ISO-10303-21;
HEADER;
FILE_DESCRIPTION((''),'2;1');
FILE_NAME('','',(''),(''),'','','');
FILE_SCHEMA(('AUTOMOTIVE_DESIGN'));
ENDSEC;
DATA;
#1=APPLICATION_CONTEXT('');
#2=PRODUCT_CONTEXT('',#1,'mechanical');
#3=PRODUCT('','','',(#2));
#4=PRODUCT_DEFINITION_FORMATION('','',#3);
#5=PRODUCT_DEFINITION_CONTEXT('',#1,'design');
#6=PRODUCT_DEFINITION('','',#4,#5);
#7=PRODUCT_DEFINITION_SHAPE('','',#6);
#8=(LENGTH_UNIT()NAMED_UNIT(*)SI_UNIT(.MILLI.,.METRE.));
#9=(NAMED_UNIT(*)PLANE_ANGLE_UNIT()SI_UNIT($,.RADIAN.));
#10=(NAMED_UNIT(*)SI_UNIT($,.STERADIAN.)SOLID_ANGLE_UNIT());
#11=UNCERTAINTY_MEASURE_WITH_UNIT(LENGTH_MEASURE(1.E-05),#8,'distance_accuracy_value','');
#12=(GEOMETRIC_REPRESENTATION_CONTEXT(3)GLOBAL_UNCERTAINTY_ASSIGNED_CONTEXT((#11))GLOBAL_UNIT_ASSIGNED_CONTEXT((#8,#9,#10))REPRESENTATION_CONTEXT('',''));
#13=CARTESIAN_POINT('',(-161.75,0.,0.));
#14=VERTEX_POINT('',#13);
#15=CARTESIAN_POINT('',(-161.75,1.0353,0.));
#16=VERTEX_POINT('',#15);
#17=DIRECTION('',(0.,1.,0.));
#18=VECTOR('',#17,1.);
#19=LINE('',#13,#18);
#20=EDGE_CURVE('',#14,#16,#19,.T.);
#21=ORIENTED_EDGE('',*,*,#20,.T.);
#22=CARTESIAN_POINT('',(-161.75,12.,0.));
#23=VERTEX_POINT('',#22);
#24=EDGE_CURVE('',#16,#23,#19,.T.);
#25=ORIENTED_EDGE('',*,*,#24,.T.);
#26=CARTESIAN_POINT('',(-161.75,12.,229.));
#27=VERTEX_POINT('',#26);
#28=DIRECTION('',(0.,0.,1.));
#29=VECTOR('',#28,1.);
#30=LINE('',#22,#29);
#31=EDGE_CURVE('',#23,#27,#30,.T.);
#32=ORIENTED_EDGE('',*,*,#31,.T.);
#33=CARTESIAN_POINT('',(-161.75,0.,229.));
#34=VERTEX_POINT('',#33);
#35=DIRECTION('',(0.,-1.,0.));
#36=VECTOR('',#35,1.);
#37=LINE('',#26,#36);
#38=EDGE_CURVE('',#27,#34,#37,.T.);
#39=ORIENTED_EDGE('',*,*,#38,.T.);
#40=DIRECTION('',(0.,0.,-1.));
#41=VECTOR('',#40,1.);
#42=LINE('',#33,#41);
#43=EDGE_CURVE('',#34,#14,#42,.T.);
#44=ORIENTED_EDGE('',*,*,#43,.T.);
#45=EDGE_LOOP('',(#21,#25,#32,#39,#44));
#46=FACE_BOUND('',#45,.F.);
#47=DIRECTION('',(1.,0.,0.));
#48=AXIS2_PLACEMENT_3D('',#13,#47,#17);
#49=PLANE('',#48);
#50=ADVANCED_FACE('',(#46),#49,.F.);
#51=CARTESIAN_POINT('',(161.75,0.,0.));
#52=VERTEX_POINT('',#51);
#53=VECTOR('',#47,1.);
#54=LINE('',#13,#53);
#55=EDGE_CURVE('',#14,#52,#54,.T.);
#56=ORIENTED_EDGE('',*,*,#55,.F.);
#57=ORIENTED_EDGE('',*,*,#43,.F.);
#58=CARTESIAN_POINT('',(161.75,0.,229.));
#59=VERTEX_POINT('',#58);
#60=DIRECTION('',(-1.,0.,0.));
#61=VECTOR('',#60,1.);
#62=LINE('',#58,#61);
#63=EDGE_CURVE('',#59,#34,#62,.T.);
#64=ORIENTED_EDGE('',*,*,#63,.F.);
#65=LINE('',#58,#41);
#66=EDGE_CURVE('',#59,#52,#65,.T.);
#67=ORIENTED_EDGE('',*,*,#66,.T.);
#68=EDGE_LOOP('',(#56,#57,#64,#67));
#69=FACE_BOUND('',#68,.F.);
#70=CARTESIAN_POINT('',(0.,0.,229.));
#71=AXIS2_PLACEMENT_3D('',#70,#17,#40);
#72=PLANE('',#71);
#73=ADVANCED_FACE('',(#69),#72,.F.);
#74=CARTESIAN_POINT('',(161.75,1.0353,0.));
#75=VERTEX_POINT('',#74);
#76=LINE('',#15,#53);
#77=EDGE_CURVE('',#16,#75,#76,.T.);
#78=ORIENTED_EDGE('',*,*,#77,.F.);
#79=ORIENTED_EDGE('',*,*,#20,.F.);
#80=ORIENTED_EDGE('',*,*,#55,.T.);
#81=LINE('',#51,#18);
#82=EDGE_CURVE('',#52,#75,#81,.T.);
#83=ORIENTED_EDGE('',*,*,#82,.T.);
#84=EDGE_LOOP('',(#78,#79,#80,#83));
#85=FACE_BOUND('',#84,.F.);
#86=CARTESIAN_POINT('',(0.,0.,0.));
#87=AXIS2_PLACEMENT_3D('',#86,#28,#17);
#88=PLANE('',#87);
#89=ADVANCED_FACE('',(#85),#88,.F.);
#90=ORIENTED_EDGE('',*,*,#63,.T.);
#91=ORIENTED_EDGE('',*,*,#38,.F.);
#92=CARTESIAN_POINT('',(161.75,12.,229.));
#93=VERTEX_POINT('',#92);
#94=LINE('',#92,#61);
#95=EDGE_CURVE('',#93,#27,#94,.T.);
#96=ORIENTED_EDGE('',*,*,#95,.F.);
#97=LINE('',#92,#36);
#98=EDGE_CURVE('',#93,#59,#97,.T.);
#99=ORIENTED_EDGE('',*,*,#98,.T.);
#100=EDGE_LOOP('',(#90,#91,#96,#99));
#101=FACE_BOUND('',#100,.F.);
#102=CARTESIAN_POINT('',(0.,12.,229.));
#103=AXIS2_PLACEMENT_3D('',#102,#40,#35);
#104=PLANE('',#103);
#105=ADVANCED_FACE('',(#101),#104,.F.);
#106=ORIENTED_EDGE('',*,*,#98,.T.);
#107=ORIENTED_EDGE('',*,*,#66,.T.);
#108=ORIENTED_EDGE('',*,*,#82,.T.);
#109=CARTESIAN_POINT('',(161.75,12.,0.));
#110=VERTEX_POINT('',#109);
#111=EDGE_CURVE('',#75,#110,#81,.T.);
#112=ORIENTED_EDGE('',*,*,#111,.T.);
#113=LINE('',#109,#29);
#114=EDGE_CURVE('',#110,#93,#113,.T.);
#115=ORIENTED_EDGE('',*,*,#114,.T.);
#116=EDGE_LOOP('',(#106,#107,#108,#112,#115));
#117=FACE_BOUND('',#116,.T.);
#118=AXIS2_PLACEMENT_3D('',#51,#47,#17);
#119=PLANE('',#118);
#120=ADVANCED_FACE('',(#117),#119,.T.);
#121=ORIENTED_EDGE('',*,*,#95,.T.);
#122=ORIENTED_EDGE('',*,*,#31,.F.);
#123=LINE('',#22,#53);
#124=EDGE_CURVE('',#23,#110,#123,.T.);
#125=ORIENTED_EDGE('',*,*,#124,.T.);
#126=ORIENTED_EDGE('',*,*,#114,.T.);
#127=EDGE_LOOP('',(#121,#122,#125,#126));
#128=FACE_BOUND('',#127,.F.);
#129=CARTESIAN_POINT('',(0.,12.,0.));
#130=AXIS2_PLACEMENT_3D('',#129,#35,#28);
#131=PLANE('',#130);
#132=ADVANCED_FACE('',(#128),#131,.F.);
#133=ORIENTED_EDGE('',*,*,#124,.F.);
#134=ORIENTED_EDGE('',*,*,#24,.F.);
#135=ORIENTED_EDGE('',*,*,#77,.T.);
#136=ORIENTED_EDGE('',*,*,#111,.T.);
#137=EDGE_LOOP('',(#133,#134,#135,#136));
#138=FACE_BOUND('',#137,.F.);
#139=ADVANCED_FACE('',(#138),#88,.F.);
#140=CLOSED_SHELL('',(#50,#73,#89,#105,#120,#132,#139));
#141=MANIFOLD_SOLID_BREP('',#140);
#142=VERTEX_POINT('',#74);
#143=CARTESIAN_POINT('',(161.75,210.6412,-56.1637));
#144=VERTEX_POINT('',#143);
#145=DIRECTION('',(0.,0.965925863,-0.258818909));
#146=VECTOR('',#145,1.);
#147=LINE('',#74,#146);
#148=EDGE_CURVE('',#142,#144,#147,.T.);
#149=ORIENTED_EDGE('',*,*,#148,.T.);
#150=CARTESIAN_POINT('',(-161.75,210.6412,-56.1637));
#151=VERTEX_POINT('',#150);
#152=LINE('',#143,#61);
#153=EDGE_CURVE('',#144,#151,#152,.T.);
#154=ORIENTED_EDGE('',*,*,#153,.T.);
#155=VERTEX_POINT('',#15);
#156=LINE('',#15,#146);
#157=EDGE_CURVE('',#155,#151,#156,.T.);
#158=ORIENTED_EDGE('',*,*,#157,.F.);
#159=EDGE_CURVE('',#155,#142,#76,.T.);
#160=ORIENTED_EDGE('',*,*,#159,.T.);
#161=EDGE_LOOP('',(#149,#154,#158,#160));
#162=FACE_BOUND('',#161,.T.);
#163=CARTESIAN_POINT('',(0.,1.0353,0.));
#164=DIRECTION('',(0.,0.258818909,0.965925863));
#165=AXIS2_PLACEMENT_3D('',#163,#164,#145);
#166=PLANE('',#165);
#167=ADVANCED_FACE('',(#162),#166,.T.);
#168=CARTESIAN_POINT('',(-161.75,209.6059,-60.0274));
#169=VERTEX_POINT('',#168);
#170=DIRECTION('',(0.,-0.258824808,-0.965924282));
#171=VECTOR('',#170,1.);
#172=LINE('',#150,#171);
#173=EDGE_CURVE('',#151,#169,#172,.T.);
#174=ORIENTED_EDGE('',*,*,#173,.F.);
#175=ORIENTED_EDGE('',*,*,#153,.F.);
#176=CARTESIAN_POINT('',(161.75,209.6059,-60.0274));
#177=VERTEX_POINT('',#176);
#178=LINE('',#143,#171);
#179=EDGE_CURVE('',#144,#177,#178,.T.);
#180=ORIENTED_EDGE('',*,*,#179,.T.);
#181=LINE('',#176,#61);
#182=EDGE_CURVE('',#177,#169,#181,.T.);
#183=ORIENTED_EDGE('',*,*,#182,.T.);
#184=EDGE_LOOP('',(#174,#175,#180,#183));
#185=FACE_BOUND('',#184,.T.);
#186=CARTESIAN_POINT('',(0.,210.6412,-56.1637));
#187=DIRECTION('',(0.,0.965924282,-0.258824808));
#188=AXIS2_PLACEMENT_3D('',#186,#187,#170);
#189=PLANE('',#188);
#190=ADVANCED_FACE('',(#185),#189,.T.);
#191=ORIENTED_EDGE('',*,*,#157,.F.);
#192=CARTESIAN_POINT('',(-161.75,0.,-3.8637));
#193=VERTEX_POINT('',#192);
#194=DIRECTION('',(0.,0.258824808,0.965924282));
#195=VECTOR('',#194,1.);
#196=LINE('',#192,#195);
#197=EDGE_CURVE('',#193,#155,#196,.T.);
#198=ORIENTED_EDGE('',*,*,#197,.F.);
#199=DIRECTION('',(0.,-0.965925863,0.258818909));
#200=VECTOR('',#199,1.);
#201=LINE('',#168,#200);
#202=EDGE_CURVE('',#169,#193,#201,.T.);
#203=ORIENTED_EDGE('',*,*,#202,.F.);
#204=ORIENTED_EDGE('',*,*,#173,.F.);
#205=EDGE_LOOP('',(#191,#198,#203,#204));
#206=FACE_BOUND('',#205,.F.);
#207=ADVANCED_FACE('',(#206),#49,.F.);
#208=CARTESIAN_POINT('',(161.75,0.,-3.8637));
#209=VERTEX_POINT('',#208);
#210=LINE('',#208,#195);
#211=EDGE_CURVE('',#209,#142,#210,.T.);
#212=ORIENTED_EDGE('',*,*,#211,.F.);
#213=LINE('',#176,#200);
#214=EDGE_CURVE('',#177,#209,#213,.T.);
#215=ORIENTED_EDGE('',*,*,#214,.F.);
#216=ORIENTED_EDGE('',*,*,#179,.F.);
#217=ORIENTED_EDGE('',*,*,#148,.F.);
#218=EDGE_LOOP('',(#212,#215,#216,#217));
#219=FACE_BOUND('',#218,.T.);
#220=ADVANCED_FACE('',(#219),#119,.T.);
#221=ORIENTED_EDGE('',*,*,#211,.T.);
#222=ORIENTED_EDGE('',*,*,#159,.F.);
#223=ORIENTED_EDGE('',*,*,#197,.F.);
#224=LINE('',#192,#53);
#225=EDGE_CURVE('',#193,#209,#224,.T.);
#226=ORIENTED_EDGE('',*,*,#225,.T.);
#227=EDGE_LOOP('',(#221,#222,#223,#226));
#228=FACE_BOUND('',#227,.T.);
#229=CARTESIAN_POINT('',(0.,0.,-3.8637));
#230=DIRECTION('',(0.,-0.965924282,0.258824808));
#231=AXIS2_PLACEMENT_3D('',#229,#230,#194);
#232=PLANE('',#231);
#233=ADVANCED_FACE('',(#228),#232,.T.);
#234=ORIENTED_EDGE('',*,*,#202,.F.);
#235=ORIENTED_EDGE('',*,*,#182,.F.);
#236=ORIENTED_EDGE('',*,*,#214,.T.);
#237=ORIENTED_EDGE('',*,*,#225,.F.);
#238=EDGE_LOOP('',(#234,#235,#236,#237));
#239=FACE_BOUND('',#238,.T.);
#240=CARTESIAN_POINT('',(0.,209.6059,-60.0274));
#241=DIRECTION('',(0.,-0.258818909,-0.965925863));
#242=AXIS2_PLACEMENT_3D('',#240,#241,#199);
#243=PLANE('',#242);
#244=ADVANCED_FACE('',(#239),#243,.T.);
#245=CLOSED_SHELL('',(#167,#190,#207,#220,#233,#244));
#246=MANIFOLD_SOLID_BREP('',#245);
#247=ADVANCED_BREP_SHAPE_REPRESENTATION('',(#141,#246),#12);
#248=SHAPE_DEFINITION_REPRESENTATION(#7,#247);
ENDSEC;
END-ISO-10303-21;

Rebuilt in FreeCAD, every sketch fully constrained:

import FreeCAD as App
import Part
import Sketcher
Q = App.Units.Quantity

doc = App.newDocument("Part")
params = doc.addObject("Spreadsheet::Sheet", "Params")
for row, (alias, value) in enumerate([
    ("sketch1_length", "217 mm"),
    ("sketch1_length2", "4 mm"),
    ("pad1_length", "323.5 mm"),
    ("sketch2_width", "12 mm"),
    ("sketch2_height", "229 mm"),
    ("pad2_length", "323.5 mm"),
], start=1):
    params.set(f"A{row}", alias)
    params.set(f"B{row}", "=" + value)
    params.setAlias(f"B{row}", alias)

body = doc.addObject("PartDesign::Body", "Body")
body.AllowCompound = True

# Sketch on YZ plane
sketch1 = doc.addObject("Sketcher::SketchObject", "Sketch")
body.addObject(sketch1)
sketch1.AttachmentSupport = (doc.YZ_Plane, [""])
sketch1.MapMode = "FlatFace"
sketch1.addGeometry([
    Part.LineSegment(App.Vector(210.6, -56.2, 0), App.Vector(1, 0, 0)),
    Part.LineSegment(App.Vector(1, 0, 0), App.Vector(0, -3.9, 0)),
    Part.LineSegment(App.Vector(0, -3.9, 0), App.Vector(209.6, -60, 0)),
    Part.LineSegment(App.Vector(209.6, -60, 0), App.Vector(210.6, -56.2, 0)),
], False)
sketch1.addConstraint([
    Sketcher.Constraint("Coincident", 0, 2, 1, 1),
    Sketcher.Constraint("Coincident", 1, 2, 2, 1),
    Sketcher.Constraint("Coincident", 2, 2, 3, 1),
    Sketcher.Constraint("Coincident", 3, 2, 0, 1),
    Sketcher.Constraint("PointOnObject", 0, 2, -1),
    Sketcher.Constraint("PointOnObject", 1, 2, -2),
    Sketcher.Constraint("Perpendicular", 0, 1),
    Sketcher.Constraint("Perpendicular", 1, 2),
    Sketcher.Constraint("Perpendicular", 2, 3),
    Sketcher.Constraint("Angle", 3, Q("74.9997 deg")),
    Sketcher.Constraint("Distance", 0, 217.0),
    Sketcher.Constraint("Distance", 1, 4.0),
])
sketch1.setExpression("Constraints[10]", "Params.sketch1_length")
sketch1.setExpression("Constraints[11]", "Params.sketch1_length2")
pad1 = doc.addObject("PartDesign::Pad", "Pad")
body.addObject(pad1)
pad1.Profile = sketch1
pad1.setExpression("Length", "Params.pad1_length")
pad1.Midplane = True

# Sketch on YZ plane
sketch2 = doc.addObject("Sketcher::SketchObject", "Sketch001")
body.addObject(sketch2)
sketch2.AttachmentSupport = (doc.YZ_Plane, [""])
sketch2.MapMode = "FlatFace"
sketch2.addGeometry([
    Part.LineSegment(App.Vector(0, 229, 0), App.Vector(0, 0, 0)),
    Part.LineSegment(App.Vector(0, 0, 0), App.Vector(12, 0, 0)),
    Part.LineSegment(App.Vector(12, 0, 0), App.Vector(12, 229, 0)),
    Part.LineSegment(App.Vector(12, 229, 0), App.Vector(0, 229, 0)),
], False)
sketch2.addConstraint([
    Sketcher.Constraint("Coincident", 0, 2, 1, 1),
    Sketcher.Constraint("Coincident", 1, 2, 2, 1),
    Sketcher.Constraint("Coincident", 2, 2, 3, 1),
    Sketcher.Constraint("Coincident", 3, 2, 0, 1),
    Sketcher.Constraint("Vertical", 0),
    Sketcher.Constraint("Horizontal", 1),
    Sketcher.Constraint("Vertical", 2),
    Sketcher.Constraint("Horizontal", 3),
    Sketcher.Constraint("Coincident", 0, 2, -1, 1),
    Sketcher.Constraint("DistanceX", 1, 1, 1, 2, 12.0),
    Sketcher.Constraint("DistanceY", 0, 2, 0, 1, 229.0),
])
sketch2.setExpression("Constraints[9]", "Params.sketch2_width")
sketch2.setExpression("Constraints[10]", "Params.sketch2_height")
pad2 = doc.addObject("PartDesign::Pad", "Pad001")
body.addObject(pad2)
pad2.Profile = sketch2
pad2.setExpression("Length", "Params.pad2_length")
pad2.Midplane = True

doc.recompute()
